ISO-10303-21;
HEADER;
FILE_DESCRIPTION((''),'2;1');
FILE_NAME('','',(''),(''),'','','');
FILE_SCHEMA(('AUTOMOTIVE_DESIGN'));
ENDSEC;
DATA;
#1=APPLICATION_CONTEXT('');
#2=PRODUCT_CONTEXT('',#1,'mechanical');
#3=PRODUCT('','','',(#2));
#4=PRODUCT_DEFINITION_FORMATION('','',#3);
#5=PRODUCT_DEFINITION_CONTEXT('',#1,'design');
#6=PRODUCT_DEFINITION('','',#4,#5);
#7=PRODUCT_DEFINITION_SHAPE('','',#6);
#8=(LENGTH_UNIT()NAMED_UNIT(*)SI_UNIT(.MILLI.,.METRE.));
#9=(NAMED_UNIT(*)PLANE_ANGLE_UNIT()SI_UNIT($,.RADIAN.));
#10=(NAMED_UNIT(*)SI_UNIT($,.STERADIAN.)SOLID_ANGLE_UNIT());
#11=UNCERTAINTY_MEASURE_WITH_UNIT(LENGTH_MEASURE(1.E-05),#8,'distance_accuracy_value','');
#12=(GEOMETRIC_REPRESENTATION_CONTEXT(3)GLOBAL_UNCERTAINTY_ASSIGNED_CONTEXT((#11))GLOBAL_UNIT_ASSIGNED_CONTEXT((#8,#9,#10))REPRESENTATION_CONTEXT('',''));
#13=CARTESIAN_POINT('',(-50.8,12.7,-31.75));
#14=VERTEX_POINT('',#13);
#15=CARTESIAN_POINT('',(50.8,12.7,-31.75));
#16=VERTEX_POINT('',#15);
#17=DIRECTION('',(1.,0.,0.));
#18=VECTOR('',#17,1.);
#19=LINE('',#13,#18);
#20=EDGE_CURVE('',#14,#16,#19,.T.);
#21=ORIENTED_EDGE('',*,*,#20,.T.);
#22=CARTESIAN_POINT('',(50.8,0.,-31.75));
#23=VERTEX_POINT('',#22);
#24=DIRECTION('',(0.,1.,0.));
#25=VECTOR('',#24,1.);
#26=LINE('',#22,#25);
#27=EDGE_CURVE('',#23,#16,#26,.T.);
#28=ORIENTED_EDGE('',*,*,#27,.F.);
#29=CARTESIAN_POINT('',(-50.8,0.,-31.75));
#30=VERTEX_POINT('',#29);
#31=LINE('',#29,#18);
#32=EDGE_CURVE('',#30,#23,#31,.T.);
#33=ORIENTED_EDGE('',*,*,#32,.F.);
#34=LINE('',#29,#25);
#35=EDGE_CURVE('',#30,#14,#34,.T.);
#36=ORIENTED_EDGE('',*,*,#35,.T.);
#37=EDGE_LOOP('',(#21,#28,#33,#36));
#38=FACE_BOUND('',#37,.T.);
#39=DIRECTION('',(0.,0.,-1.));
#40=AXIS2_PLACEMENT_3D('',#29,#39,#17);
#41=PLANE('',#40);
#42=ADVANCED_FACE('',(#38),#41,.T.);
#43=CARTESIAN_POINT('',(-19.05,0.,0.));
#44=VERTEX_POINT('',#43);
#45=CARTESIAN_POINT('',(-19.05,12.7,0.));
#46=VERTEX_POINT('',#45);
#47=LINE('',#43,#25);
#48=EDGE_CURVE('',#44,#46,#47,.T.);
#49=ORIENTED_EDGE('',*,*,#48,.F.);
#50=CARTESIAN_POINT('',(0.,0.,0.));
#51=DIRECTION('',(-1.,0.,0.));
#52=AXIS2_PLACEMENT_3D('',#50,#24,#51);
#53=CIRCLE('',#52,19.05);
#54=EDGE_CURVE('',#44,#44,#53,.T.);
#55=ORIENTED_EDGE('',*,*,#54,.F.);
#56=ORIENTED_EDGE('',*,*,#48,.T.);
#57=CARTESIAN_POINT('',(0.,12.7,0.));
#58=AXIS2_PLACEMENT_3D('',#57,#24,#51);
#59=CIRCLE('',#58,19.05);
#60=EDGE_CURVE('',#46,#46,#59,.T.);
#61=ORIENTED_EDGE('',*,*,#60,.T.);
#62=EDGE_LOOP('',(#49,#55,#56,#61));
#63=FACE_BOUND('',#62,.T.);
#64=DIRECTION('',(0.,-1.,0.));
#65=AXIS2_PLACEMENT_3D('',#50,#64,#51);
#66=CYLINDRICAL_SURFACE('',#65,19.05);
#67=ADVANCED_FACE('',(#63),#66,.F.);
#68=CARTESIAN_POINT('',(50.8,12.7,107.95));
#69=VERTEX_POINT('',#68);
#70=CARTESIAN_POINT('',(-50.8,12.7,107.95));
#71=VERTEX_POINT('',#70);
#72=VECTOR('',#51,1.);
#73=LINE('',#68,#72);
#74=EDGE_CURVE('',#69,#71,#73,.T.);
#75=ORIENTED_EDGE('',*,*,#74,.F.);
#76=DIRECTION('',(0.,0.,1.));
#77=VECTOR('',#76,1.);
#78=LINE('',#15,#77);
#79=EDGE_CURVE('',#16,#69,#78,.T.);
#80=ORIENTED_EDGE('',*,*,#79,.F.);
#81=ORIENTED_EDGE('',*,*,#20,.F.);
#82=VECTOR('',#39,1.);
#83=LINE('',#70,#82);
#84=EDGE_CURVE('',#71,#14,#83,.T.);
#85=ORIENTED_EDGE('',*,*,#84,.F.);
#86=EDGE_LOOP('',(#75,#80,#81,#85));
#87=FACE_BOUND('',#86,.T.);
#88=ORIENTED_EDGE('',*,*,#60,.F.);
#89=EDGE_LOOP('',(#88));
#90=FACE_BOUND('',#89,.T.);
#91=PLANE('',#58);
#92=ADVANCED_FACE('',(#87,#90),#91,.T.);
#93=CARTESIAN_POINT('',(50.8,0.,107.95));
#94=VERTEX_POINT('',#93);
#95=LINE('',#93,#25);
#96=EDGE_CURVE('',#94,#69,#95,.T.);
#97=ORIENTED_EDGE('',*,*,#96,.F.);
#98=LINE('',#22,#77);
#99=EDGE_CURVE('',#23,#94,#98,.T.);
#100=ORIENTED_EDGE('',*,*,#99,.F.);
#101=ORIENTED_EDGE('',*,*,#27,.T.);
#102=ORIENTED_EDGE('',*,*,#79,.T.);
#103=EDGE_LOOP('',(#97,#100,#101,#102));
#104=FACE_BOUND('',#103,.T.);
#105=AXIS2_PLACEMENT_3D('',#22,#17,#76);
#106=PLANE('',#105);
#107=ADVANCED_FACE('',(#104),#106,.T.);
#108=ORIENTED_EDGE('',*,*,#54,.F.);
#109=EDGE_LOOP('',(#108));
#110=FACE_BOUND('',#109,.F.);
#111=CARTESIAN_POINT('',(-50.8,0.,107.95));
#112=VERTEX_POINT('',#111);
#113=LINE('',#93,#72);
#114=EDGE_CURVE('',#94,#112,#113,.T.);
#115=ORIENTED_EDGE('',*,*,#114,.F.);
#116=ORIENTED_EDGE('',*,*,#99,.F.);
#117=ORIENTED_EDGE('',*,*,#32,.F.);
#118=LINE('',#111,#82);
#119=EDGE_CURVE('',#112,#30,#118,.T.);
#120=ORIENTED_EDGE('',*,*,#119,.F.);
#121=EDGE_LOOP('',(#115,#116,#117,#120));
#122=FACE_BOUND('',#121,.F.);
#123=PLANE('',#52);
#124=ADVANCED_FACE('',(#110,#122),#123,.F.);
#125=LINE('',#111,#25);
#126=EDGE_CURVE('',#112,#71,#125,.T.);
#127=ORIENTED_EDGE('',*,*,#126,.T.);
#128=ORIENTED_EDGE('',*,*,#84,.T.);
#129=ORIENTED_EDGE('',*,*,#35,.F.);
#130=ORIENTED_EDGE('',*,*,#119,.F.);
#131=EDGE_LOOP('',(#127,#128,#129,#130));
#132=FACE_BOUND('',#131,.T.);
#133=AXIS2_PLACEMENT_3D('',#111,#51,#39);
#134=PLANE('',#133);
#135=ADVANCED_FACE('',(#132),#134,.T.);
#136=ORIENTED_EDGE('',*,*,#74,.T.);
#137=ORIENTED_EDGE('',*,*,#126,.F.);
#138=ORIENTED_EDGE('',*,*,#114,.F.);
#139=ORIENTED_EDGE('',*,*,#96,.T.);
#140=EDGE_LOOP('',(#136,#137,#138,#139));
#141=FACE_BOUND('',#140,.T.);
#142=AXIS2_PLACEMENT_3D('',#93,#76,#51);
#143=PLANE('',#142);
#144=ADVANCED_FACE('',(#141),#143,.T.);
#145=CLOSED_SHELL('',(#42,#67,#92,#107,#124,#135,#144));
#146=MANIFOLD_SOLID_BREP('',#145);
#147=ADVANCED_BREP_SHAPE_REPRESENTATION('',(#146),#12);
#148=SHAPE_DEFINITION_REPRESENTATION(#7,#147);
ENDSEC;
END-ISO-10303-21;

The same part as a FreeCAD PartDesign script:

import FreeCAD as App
import Part
import Sketcher

V = App.Vector
Q = App.Units.Quantity

doc = App.newDocument("Part")
body = doc.addObject("PartDesign::Body", "Body")

# Sketch on XZ plane
sketch1 = body.newObject("Sketcher::SketchObject", "Sketch")
sketch1.AttachmentSupport = (doc.getObject("XZ_Plane"), [""])
sketch1.MapMode = "FlatFace"
sketch1.addGeometry([
    Part.LineSegment(V(-50.8, 107.95, 0), V(50.8, 107.95, 0)),  # 0
    Part.LineSegment(V(50.8, 107.95, 0), V(50.8, -31.75, 0)),  # 1
    Part.LineSegment(V(50.8, -31.75, 0), V(-50.8, -31.75, 0)),  # 2
    Part.LineSegment(V(-50.8, -31.75, 0), V(-50.8, 107.95, 0)),  # 3
    Part.Circle(V(0, 0, 0), V(0, 0, 1), 19.05),  # 4
], False)
sketch1.addConstraint([
    Sketcher.Constraint("Coincident", 0, 2, 1, 1),
    Sketcher.Constraint("Coincident", 1, 2, 2, 1),
    Sketcher.Constraint("Coincident", 2, 2, 3, 1),
    Sketcher.Constraint("Coincident", 3, 2, 0, 1),
    Sketcher.Constraint("Horizontal", 0),
    Sketcher.Constraint("Vertical", 1),
    Sketcher.Constraint("Horizontal", 2),
    Sketcher.Constraint("Vertical", 3),
    Sketcher.Constraint("Coincident", 4, 3, -1, 1),
    Sketcher.Constraint("Diameter", 4, Q("1.5 in")),
    Sketcher.Constraint("DistanceX", 0, 1, 0, 2, Q("4 in")),
    Sketcher.Constraint("DistanceY", 1, 2, 1, 1, Q("5.5 in")),
    Sketcher.Constraint("DistanceY", 1, 2, -1, 1, Q("1.25 in")),
    Sketcher.Constraint("DistanceX", -1, 1, 0, 2, Q("2 in")),
])
pad1 = body.newObject("PartDesign::Pad", "Pad")
pad1.Profile = sketch1
pad1.Length = Q("0.5 in")
pad1.Reversed = True

doc.recompute()
